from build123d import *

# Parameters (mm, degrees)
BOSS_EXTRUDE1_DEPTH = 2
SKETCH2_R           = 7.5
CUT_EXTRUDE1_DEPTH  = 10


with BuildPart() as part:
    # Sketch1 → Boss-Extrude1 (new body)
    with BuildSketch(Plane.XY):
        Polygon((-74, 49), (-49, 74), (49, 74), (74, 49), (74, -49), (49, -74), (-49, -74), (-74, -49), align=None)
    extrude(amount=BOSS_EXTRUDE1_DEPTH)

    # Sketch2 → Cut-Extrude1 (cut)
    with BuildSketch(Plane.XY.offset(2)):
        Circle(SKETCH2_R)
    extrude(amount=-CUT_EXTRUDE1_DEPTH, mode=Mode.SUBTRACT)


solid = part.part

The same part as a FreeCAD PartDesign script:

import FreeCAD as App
import Part
import Sketcher
Q = App.Units.Quantity


def add_polygon(sketch, points):
    """Adds a closed chain of lines whose ends are joined by coincident constraints."""
    first, n = sketch.GeometryCount, len(points)
    for a, b in zip(points, points[1:] + points[:1]):
        sketch.addGeometry(Part.LineSegment(App.Vector(*a, 0), App.Vector(*b, 0)), False)
    for i in range(n):
        sketch.addConstraint(Sketcher.Constraint("Coincident", first + i, 2, first + (i + 1) % n, 1))

doc = App.newDocument("Part")
body = doc.addObject("PartDesign::Body", "Body")

sketch1 = body.newObject("Sketcher::SketchObject", "Sketch")
sketch1.AttachmentSupport = (doc.getObject("XY_Plane"), [""])
sketch1.MapMode = "FlatFace"
add_polygon(sketch1, [(-49, 74), (-74, 49), (-74, -49), (-49, -74), (49, -74), (74, -49), (74, 49), (49, 74)])
sketch1.addConstraint(Sketcher.Constraint("Vertical", 1))
sketch1.addConstraint(Sketcher.Constraint("Horizontal", 3))
sketch1.addConstraint(Sketcher.Constraint("Vertical", 5))
sketch1.addConstraint(Sketcher.Constraint("Horizontal", 7))
sketch1.addConstraint(Sketcher.Constraint("Symmetric", 0, 2, 4, 2, -1, 1))
sketch1.addConstraint(Sketcher.Constraint("Symmetric", 2, 2, 6, 2, -1, 1))
sketch1.addConstraint(Sketcher.Constraint("Perpendicular", 0, 2))
sketch1.addConstraint(Sketcher.Constraint("Perpendicular", 2, 4))
sketch1.addConstraint(Sketcher.Constraint("Perpendicular", 4, 6))
sketch1.addConstraint(Sketcher.Constraint("Horizontal", 1, 2, 4, 2))
sketch1.addConstraint(Sketcher.Constraint("Vertical", 3, 2, 6, 2))
sketch1.addConstraint(Sketcher.Constraint("Equal", 7, 1))
sketch1.addConstraint(Sketcher.Constraint("DistanceX", 3, 1, 3, 2, Q("98 mm")))
sketch1.addConstraint(Sketcher.Constraint("DistanceX", 0, 2, -1, 1, Q("74 mm")))
pad1 = body.newObject("PartDesign::Pad", "Pad")
pad1.Profile = sketch1
pad1.Length = 2

sketch2 = body.newObject("Sketcher::SketchObject", "Sketch001")
sketch2.AttachmentSupport = (doc.getObject("XY_Plane"), [""])
sketch2.MapMode = "FlatFace"
sketch2.AttachmentOffset = App.Placement(App.Vector(0, 0, 2), App.Rotation())
sketch2.addGeometry(Part.Circle(App.Vector(0, 0, 0), App.Vector(0, 0, 1), 7.5), False)
sketch2.addConstraint(Sketcher.Constraint("Coincident", 0, 3, -1, 1))
sketch2.addConstraint(Sketcher.Constraint("Diameter", 0, Q("15 mm")))
pocket1 = body.newObject("PartDesign::Pocket", "Pocket")
pocket1.Profile = sketch2
pocket1.Length = 10

doc.recompute()
